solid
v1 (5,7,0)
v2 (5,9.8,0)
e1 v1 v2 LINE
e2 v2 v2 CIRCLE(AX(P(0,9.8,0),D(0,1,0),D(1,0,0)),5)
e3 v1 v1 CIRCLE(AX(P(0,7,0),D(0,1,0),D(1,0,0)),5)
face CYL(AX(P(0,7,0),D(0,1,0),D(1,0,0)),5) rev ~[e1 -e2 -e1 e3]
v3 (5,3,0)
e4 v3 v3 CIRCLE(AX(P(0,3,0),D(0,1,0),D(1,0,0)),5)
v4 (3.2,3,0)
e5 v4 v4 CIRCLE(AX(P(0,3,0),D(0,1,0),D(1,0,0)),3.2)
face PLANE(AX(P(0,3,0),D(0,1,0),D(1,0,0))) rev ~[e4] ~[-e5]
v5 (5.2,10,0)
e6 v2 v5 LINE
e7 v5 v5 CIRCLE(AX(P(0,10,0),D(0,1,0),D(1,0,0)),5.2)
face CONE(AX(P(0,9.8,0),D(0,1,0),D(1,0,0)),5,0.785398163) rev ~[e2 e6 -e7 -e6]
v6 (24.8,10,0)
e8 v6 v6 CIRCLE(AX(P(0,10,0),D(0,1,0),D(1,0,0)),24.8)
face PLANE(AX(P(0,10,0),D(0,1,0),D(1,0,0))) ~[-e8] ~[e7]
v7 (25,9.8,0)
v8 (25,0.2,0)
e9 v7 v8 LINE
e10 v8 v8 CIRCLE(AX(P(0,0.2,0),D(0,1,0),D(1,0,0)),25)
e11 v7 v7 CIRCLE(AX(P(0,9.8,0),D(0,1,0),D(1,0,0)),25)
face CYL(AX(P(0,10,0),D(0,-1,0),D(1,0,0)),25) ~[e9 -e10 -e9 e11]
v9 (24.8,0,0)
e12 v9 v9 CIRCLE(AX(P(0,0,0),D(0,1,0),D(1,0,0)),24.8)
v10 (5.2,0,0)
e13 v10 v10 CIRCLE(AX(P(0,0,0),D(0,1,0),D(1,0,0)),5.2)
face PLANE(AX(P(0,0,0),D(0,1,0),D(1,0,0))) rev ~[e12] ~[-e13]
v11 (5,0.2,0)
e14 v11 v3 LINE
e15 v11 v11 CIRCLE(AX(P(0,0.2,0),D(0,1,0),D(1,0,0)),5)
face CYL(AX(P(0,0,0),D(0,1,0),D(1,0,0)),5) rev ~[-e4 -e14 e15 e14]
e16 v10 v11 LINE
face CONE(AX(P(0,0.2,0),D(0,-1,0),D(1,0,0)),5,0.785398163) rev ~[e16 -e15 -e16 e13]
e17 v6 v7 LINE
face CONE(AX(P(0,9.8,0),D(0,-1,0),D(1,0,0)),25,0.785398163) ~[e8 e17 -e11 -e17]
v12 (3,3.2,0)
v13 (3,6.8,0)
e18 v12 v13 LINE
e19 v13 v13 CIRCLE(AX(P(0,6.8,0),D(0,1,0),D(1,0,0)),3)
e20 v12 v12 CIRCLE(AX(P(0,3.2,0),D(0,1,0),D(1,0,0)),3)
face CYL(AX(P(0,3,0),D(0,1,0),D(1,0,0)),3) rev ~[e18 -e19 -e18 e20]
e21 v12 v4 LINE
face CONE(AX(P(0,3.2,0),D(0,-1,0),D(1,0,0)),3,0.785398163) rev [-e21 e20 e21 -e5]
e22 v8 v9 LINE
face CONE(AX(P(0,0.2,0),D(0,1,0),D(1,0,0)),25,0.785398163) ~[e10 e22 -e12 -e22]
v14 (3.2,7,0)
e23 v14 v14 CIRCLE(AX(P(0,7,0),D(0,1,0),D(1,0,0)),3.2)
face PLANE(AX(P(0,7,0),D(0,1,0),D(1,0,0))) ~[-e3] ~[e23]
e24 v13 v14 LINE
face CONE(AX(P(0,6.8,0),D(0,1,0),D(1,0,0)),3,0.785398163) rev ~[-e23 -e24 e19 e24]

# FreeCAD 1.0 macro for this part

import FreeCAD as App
import Part
import Sketcher
Q = App.Units.Quantity


def edges_at(feature, points):
    """Names of the edges that pass closest to the given points."""
    edges = feature.Shape.Edges
    near = lambda p: min(range(len(edges)), key=lambda i: edges[i].distToShape(Part.Vertex(*p))[0])
    return sorted({f"Edge{near(p) + 1}" for p in points})


def add_polygon(sketch, points):
    """Adds a closed chain of lines whose ends are joined by coincident constraints."""
    first, n = sketch.GeometryCount, len(points)
    for a, b in zip(points, points[1:] + points[:1]):
        sketch.addGeometry(Part.LineSegment(App.Vector(*a, 0), App.Vector(*b, 0)), False)
    for i in range(n):
        sketch.addConstraint(Sketcher.Constraint("Coincident", first + i, 2, first + (i + 1) % n, 1))

doc = App.newDocument("Part")
body = doc.addObject("PartDesign::Body", "Body")

# Sketch on XY plane
sketch1 = body.newObject("Sketcher::SketchObject", "Sketch")
sketch1.AttachmentSupport = (doc.getObject("XY_Plane"), [""])
sketch1.MapMode = "FlatFace"
add_polygon(sketch1, [(3, 7), (3, 3), (5, 3), (5, 0), (25, 0), (25, 10), (5, 10), (5, 7)])  # lines 0-7
sketch1.addConstraint([
    Sketcher.Constraint("Vertical", 0),
    Sketcher.Constraint("Horizontal", 1),
    Sketcher.Constraint("Vertical", 2),
    Sketcher.Constraint("Horizontal", 3),
    Sketcher.Constraint("Vertical", 4),
    Sketcher.Constraint("Horizontal", 5),
    Sketcher.Constraint("Vertical", 6),
    Sketcher.Constraint("Horizontal", 7),
    Sketcher.Constraint("PointOnObject", 2, 2, -1),
    Sketcher.Constraint("Vertical", 2, 2, 5, 2),
    Sketcher.Constraint("Equal", 2, 6),
    Sketcher.Constraint("DistanceY", 2, 2, 2, 1, Q("3 mm")),
    Sketcher.Constraint("DistanceY", 4, 1, 4, 2, Q("10 mm")),
    Sketcher.Constraint("DistanceX", -1, 1, 0, 2, Q("3 mm")),
    Sketcher.Constraint("DistanceX", 1, 1, 1, 2, Q("2 mm")),
    Sketcher.Constraint("DistanceX", 3, 1, 3, 2, Q("20 mm")),
])
revolution = body.newObject("PartDesign::Revolution", "Revolution")
revolution.Profile = sketch1
revolution.ReferenceAxis = (sketch1, ["V_Axis"])
revolution.Angle = 360
doc.recompute()

chamfer = body.newObject("PartDesign::Chamfer", "Chamfer")
chamfer.Base = (revolution, edges_at(revolution, [
    (-25, 10, 0),
    (-25, 0, 0),
    (-3, 7, 0),
    (-5, 10, 0),
    (-3, 3, 0),
    (-5, 0, 0),
]))
chamfer.Size = 0.2

doc.recompute()
